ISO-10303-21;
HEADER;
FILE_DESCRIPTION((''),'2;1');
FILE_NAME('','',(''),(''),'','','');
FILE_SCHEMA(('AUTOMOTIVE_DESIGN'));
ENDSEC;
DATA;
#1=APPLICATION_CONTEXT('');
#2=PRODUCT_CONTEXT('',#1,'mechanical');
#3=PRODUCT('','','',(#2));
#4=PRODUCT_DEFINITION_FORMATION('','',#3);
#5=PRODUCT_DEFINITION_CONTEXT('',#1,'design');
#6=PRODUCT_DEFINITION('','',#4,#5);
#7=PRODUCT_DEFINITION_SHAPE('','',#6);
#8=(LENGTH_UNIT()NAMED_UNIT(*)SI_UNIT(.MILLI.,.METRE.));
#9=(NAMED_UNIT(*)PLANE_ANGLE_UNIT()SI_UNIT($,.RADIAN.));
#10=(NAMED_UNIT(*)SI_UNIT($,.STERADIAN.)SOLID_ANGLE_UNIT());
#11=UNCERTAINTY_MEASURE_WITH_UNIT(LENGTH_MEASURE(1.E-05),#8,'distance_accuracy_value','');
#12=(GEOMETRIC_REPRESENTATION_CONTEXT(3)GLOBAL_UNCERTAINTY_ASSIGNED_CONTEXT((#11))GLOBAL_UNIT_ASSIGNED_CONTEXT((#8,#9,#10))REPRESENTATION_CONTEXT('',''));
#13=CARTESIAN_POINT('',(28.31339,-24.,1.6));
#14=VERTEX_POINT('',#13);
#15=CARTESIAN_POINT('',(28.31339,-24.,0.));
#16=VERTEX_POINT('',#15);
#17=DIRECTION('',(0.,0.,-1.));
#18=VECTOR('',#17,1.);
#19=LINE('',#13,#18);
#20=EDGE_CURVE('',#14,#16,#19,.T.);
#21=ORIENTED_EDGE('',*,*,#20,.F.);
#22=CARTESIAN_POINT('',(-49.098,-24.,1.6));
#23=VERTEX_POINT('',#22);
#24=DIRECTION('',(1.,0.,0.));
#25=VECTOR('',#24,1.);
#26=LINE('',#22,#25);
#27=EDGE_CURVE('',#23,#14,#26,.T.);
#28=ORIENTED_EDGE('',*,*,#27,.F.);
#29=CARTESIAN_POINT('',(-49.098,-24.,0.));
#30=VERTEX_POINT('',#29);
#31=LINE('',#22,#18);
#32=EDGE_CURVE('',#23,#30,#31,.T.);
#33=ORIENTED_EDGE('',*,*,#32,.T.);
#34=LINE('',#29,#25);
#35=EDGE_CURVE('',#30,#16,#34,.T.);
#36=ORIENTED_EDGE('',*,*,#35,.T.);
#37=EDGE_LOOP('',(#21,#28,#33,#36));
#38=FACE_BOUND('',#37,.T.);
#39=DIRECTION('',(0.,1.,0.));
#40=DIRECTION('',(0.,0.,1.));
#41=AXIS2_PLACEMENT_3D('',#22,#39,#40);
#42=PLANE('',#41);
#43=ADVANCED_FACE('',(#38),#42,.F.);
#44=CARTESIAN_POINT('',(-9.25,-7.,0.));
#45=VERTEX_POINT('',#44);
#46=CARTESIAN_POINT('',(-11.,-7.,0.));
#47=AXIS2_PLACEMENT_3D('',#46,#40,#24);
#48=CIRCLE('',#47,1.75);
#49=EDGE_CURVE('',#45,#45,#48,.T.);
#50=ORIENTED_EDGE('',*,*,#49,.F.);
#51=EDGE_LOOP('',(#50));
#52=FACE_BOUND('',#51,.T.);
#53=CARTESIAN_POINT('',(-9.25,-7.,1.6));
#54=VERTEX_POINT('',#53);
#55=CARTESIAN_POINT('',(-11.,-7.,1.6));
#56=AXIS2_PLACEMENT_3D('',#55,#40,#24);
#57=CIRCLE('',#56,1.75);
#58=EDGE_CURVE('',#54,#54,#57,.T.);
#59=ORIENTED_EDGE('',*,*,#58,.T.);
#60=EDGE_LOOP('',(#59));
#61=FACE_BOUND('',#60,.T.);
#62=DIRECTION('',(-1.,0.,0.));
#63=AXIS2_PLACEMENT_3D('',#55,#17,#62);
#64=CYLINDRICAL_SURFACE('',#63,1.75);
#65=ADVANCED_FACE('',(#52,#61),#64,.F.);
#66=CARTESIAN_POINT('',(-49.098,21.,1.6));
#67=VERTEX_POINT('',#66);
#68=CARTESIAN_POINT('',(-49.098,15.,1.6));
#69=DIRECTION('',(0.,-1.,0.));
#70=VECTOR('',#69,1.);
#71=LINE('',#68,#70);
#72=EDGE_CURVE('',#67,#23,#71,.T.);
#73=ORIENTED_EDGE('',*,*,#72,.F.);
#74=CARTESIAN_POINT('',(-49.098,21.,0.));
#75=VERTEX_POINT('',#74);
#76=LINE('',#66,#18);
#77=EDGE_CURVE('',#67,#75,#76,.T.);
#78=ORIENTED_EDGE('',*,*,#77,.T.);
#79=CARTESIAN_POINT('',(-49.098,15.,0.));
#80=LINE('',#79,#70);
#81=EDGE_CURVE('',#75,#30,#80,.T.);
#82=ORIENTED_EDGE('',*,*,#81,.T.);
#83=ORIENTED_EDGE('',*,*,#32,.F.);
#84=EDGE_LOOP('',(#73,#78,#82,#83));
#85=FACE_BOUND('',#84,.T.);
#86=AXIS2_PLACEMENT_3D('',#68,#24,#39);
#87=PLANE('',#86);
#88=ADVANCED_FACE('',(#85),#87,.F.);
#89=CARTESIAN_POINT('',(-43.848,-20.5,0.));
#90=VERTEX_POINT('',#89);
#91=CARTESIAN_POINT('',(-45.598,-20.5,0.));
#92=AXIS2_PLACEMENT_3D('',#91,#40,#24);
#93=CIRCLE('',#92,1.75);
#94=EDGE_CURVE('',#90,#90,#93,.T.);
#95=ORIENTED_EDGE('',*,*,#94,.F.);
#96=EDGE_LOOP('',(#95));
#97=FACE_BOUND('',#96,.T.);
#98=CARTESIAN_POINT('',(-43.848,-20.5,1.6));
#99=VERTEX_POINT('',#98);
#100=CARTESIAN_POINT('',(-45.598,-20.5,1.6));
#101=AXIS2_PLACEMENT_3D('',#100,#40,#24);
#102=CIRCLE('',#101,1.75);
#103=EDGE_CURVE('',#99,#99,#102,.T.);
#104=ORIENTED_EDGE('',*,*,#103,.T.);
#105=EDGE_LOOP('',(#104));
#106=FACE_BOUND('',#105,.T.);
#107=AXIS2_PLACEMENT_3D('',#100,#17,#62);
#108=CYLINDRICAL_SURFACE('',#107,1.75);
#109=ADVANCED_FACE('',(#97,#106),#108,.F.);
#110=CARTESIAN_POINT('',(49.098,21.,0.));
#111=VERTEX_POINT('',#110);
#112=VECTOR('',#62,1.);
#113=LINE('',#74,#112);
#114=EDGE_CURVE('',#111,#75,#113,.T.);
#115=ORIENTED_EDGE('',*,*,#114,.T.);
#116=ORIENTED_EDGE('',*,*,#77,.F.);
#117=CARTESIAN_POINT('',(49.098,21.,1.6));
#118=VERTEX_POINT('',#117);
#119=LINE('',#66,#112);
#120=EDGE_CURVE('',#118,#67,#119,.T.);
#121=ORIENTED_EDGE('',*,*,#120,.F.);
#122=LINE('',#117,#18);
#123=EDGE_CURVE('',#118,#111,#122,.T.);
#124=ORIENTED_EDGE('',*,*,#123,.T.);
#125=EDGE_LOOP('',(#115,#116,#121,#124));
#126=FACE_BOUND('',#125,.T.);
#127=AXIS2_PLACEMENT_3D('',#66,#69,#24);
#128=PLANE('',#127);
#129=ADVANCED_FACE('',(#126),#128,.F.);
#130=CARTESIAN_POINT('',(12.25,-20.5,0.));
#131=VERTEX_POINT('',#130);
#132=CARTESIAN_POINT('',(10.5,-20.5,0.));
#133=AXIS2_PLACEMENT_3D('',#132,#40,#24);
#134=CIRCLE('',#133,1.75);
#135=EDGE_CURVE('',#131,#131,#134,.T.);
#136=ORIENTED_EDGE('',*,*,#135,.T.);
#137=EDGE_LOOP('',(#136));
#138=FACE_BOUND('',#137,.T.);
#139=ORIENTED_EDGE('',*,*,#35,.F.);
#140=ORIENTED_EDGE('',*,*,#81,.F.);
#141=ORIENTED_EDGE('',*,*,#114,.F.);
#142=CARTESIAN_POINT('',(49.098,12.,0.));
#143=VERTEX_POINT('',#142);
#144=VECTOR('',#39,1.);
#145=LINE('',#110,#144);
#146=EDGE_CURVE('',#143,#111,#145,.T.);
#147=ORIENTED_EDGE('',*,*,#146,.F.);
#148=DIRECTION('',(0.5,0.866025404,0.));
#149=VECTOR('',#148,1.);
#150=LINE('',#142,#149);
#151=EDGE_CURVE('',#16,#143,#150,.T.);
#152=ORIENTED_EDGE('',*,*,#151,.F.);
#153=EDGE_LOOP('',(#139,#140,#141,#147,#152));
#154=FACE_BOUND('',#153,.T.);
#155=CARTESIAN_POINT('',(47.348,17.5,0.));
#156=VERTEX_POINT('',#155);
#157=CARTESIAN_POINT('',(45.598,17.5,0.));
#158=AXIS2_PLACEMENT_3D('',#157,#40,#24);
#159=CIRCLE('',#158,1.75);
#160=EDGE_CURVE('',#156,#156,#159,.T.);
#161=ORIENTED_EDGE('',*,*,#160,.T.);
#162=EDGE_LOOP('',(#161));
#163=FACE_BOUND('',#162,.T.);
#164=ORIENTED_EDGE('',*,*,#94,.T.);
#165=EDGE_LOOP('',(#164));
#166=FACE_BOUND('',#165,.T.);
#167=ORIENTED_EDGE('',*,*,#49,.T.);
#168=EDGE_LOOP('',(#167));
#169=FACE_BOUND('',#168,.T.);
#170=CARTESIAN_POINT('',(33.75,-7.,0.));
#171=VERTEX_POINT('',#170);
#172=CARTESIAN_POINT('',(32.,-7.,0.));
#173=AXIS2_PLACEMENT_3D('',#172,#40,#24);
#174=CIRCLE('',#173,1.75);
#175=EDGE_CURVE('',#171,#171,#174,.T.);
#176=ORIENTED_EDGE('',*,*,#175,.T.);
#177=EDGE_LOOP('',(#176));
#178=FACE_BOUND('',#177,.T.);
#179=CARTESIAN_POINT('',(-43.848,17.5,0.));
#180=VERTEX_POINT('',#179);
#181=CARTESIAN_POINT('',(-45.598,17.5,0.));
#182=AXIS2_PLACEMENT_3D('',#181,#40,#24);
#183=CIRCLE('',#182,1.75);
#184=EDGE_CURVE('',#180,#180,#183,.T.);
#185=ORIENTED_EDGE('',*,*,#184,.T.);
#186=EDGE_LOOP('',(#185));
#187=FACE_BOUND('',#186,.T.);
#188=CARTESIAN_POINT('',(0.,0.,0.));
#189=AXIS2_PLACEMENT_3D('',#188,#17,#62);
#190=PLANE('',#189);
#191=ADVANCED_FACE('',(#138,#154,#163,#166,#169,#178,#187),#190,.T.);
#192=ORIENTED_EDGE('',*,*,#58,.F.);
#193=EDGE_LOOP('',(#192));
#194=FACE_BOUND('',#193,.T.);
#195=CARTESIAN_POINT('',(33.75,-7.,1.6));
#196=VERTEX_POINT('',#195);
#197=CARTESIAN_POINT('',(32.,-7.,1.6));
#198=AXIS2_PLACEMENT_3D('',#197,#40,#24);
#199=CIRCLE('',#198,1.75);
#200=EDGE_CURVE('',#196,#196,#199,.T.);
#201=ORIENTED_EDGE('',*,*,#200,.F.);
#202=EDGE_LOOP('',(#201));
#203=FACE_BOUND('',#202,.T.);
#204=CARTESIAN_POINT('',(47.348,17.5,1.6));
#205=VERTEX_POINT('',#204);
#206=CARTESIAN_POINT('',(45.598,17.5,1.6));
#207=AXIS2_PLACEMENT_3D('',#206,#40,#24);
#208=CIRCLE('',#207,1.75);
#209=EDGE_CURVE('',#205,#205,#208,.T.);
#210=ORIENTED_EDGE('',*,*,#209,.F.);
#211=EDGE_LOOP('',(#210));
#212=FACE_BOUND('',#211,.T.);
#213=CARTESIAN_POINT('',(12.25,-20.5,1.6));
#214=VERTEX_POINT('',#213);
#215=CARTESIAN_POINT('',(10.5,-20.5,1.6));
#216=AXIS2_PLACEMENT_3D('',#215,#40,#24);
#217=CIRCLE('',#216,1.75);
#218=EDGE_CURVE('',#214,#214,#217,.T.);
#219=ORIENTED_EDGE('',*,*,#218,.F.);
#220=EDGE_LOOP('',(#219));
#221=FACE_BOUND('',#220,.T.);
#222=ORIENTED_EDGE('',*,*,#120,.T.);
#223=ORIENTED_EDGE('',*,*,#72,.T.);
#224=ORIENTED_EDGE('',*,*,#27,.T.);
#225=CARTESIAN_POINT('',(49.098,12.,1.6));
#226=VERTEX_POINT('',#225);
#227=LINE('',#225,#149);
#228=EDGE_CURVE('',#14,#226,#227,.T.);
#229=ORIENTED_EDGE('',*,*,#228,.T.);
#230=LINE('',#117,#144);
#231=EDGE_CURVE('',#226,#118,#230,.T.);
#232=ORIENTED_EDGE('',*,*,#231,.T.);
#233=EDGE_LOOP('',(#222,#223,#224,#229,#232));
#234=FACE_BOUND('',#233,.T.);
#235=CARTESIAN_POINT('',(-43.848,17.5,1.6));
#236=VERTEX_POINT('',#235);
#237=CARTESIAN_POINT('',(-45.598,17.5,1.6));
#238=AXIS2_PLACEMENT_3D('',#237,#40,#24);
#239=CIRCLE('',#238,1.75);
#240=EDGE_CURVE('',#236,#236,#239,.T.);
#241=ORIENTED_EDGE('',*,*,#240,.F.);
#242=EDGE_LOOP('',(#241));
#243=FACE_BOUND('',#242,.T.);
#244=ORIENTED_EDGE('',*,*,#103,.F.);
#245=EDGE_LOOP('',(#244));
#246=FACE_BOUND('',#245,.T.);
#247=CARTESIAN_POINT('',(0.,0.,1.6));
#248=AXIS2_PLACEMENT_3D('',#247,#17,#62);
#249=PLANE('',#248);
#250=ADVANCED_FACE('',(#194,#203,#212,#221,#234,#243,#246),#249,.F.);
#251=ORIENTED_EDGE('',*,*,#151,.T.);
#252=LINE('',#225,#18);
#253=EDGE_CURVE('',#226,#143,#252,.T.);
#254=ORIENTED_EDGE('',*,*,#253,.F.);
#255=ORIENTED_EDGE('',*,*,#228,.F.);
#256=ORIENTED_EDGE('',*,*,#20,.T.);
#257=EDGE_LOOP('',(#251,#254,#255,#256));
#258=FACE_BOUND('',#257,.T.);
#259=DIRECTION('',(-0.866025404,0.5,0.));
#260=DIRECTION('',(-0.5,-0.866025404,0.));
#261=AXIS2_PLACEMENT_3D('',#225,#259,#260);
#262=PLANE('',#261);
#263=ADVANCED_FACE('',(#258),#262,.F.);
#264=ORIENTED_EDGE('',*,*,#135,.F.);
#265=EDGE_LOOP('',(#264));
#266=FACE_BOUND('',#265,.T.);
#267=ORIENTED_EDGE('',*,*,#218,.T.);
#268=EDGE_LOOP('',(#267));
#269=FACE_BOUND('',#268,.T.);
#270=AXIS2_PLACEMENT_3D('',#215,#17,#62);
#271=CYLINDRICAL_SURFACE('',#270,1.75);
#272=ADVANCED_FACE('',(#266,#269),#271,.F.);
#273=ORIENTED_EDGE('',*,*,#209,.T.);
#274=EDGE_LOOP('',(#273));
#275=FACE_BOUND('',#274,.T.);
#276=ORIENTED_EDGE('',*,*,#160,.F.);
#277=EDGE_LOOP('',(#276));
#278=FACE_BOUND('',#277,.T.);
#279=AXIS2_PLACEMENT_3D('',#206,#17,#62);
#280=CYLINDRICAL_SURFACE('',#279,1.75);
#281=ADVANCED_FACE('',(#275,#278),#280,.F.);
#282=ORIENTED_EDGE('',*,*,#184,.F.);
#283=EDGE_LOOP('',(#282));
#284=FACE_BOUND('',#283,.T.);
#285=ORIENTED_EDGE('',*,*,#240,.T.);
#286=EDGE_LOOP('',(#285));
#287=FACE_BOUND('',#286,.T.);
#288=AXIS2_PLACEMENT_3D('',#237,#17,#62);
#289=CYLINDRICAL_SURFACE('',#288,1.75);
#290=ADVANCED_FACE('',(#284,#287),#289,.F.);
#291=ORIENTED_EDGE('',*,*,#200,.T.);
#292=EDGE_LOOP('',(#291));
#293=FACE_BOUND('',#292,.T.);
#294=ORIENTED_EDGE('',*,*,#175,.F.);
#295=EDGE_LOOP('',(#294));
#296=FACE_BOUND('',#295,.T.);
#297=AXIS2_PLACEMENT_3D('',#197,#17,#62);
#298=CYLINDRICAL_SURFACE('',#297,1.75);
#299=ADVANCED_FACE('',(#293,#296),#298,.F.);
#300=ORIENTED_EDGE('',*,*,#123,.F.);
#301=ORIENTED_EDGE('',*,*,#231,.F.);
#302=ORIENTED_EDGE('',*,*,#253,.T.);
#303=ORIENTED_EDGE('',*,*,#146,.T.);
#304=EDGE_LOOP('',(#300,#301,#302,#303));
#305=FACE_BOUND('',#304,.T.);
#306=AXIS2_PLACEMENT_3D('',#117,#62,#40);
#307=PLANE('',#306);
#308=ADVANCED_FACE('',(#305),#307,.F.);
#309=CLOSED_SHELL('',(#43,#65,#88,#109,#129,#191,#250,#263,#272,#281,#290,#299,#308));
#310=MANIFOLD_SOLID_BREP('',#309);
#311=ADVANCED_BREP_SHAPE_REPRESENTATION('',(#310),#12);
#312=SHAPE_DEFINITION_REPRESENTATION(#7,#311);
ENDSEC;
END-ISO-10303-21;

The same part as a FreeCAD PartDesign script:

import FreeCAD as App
import Part
import Sketcher
from FreeCAD import Vector
Q = App.Units.Quantity

doc = App.newDocument("Part")
body = doc.addObject("PartDesign::Body", "Body")

# Sketch on XY plane
sketch1 = body.newObject("Sketcher::SketchObject", "Sketch")
sketch1.AttachmentSupport = (doc.getObject("XY_Plane"), [""])
sketch1.MapMode = "FlatFace"
sketch1.addGeometry([
    Part.LineSegment(Vector(-49.098, -24, 0), Vector(28.31339, -24, 0)),  # 0
    Part.LineSegment(Vector(28.31339, -24, 0), Vector(49.098, 12, 0)),  # 1
    Part.LineSegment(Vector(49.098, 12, 0), Vector(49.098, 21, 0)),  # 2
    Part.LineSegment(Vector(49.098, 21, 0), Vector(-49.098, 21, 0)),  # 3
    Part.LineSegment(Vector(-49.098, 21, 0), Vector(-49.098, -24, 0)),  # 4
    Part.Circle(Vector(-45.598, -20.5, 0), Vector(0, 0, 1), 1.75),  # 5
    Part.Circle(Vector(-11, -7, 0), Vector(0, 0, 1), 1.75),  # 6
    Part.Circle(Vector(10.5, -20.5, 0), Vector(0, 0, 1), 1.75),  # 7
    Part.Circle(Vector(32, -7, 0), Vector(0, 0, 1), 1.75),  # 8
    Part.Circle(Vector(-45.598, 17.5, 0), Vector(0, 0, 1), 1.75),  # 9
    Part.Circle(Vector(45.598, 17.5, 0), Vector(0, 0, 1), 1.75),  # 10
], False)
sketch1.addConstraint([
    Sketcher.Constraint("Coincident", 0, 2, 1, 1),
    Sketcher.Constraint("Coincident", 1, 2, 2, 1),
    Sketcher.Constraint("Coincident", 2, 2, 3, 1),
    Sketcher.Constraint("Coincident", 3, 2, 4, 1),
    Sketcher.Constraint("Coincident", 4, 2, 0, 1),
    Sketcher.Constraint("Horizontal", 0),
    Sketcher.Constraint("Vertical", 2),
    Sketcher.Constraint("Horizontal", 3),
    Sketcher.Constraint("Vertical", 4),
    Sketcher.Constraint("Equal", 5, 6),
    Sketcher.Constraint("Equal", 6, 7),
    Sketcher.Constraint("Equal", 7, 8),
    Sketcher.Constraint("Equal", 8, 9),
    Sketcher.Constraint("Equal", 9, 10),
    Sketcher.Constraint("Symmetric", 9, 3, 10, 3, -2),
    Sketcher.Constraint("Horizontal", 5, 3, 7, 3),
    Sketcher.Constraint("Horizontal", 6, 3, 8, 3),
    Sketcher.Constraint("Vertical", 5, 3, 9, 3),
    Sketcher.Constraint("Diameter", 5, Q("3.5 mm")),
    Sketcher.Constraint("DistanceY", 2, 1, 2, 2, Q("9 mm")),
    Sketcher.Constraint("DistanceY", 4, 2, 4, 1, Q("45 mm")),
    Sketcher.Constraint("Angle", 1, Q("60 deg")),
    Sketcher.Constraint("DistanceX", 6, 3, -1, 1, Q("11 mm")),
    Sketcher.Constraint("DistanceY", 6, 3, -1, 1, Q("7 mm")),
    Sketcher.Constraint("DistanceX", -1, 1, 8, 3, Q("32 mm")),
    Sketcher.Constraint("DistanceY", 0, 2, -1, 1, Q("24 mm")),
    Sketcher.Constraint("DistanceY", 5, 3, 9, 3, Q("38 mm")),
    Sketcher.Constraint("DistanceY", 5, 3, -1, 1, Q("20.5 mm")),
    Sketcher.Constraint("DistanceX", -1, 1, 7, 3, Q("10.5 mm")),
    Sketcher.Constraint("DistanceX", 10, 3, 1, 2, Q("3.5 mm")),
    Sketcher.Constraint("DistanceX", 3, 2, 9, 3, Q("3.5 mm")),
    Sketcher.Constraint("DistanceX", 3, 2, 3, 1, Q("98.196 mm")),
])
pad1 = body.newObject("PartDesign::Pad", "Pad")
pad1.Profile = sketch1
pad1.Length = 1.6

doc.recompute()
